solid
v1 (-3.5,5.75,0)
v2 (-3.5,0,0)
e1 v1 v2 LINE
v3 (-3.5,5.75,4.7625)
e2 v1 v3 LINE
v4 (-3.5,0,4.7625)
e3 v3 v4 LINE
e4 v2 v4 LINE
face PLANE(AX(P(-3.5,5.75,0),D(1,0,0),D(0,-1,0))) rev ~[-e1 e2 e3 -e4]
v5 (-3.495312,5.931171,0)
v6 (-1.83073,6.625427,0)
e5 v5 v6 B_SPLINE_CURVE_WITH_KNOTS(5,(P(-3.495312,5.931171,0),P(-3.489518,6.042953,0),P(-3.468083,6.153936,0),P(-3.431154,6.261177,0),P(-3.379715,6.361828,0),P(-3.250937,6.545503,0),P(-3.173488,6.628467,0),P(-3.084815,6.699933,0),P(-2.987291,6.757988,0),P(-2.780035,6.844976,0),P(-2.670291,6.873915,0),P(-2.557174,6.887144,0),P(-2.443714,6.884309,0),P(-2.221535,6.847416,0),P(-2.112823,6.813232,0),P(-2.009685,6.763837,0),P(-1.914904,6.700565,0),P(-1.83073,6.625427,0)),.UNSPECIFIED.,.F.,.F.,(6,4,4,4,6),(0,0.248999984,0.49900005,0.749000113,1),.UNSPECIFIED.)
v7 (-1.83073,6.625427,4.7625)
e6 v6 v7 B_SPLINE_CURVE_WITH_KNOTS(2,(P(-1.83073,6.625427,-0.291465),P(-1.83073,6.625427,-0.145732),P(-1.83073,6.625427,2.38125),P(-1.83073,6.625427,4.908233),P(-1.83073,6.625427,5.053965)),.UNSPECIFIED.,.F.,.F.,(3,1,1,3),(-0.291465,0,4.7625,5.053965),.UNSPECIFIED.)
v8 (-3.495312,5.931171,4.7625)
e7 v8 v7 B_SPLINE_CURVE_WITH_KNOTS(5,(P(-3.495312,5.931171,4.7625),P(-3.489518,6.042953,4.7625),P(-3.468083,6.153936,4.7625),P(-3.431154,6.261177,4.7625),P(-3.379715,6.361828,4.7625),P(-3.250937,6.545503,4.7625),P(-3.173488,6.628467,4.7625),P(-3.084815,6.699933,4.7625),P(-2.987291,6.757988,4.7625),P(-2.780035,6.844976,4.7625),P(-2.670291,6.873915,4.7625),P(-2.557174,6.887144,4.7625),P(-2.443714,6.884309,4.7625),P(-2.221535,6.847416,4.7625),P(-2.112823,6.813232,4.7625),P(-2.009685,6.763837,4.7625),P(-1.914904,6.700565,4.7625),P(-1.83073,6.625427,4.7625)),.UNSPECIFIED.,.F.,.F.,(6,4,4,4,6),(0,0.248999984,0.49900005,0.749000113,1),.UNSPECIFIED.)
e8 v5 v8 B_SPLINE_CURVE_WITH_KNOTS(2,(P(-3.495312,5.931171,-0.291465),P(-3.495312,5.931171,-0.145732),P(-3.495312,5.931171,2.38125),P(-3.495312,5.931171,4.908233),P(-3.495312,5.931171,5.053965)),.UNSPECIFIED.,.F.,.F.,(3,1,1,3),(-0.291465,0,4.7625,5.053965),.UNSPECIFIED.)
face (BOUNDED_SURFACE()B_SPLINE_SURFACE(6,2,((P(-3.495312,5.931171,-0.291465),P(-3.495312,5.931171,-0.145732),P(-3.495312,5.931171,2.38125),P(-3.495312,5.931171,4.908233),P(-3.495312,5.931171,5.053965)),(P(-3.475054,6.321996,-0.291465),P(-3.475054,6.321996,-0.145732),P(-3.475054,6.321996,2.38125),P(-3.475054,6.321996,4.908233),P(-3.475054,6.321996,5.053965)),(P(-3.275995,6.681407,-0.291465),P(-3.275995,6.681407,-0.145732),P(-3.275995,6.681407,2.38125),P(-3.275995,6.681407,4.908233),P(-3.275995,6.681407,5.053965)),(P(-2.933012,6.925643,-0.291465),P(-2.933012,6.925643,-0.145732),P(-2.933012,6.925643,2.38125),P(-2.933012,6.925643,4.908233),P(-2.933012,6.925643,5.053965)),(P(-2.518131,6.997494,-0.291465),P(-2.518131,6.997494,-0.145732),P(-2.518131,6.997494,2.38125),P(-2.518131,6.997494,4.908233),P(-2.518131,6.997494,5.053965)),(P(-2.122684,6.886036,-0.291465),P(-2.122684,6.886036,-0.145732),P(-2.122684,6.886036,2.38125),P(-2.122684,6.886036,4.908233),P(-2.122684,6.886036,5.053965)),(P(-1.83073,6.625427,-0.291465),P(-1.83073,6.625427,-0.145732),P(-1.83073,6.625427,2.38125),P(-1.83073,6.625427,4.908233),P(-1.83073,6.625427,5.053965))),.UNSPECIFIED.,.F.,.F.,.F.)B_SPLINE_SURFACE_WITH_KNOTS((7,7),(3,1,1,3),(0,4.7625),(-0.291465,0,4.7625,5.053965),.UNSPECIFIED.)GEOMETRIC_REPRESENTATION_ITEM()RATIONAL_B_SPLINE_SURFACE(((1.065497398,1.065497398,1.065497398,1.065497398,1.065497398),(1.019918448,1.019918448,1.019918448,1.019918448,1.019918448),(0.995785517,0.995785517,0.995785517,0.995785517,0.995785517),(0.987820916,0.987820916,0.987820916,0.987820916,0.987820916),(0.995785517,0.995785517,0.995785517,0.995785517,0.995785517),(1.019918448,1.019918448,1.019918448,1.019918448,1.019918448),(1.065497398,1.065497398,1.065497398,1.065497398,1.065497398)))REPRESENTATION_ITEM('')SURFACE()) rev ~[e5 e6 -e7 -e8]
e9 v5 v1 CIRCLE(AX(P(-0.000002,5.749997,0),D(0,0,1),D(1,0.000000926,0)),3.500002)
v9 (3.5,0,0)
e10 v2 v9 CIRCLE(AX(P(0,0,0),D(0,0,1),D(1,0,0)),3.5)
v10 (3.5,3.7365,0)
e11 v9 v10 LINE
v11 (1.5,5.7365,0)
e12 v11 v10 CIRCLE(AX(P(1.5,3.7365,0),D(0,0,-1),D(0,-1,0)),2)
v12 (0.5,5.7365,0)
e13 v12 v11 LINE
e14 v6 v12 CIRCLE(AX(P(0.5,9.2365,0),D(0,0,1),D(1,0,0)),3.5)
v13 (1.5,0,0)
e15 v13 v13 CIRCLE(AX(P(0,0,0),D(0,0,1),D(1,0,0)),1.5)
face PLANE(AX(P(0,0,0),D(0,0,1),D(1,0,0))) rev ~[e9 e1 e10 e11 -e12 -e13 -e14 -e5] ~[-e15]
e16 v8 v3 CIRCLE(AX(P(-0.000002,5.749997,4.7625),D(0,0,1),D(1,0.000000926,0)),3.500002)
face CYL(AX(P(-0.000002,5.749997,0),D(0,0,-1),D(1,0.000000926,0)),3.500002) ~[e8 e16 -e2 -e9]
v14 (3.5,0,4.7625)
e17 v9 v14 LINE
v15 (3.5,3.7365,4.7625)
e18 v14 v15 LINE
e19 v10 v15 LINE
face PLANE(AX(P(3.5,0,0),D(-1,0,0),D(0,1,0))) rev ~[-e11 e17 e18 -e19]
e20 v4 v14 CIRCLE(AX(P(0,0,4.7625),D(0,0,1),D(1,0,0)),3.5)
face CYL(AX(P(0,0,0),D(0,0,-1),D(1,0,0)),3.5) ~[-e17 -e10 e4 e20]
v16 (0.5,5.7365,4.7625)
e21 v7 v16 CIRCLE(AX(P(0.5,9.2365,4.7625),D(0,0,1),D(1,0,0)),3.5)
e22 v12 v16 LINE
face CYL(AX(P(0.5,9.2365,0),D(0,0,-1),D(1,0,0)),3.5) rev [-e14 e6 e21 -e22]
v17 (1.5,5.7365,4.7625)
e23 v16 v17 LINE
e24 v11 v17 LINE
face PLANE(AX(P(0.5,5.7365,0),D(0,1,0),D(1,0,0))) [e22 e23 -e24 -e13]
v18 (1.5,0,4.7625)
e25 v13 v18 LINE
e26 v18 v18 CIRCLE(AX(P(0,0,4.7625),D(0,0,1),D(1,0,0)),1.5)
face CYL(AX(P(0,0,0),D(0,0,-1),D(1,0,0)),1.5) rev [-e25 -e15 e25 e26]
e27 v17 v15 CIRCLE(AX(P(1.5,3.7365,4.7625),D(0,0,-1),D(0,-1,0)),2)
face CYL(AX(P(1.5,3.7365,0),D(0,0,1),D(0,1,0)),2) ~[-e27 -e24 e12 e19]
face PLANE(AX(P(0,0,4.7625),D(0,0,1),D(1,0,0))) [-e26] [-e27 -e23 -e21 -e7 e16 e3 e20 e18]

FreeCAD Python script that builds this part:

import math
import FreeCAD as App
import Part
import Sketcher

V = App.Vector


def edges_at(feature, points):
    """Names of the edges that pass closest to the given points."""
    edges = feature.Shape.Edges
    near = lambda p: min(range(len(edges)), key=lambda i: edges[i].distToShape(Part.Vertex(*p))[0])
    return sorted({f"Edge{near(p) + 1}" for p in points})

doc = App.newDocument("Part")
params = doc.addObject("Spreadsheet::Sheet", "Params")
for row, (alias, value) in enumerate([
    ("sketch1_diameter", "3 mm"),
    ("sketch1_radius", "3.5 mm"),
    ("sketch1_width", "3 mm"),
    ("sketch1_height", "5.75 mm"),
    ("pad1_length", "4.7625 mm"),
    ("fillet_radius", "1 mm"),
    ("fillet2_radius", "2 mm"),
], start=1):
    params.set(f"A{row}", alias)
    params.set(f"B{row}", "=" + value)
    params.setAlias(f"B{row}", alias)

body = doc.addObject("PartDesign::Body", "Body")

sketch1 = body.newObject("Sketcher::SketchObject", "Sketch")
sketch1.AttachmentSupport = (doc.getObject("XY_Plane"), [""])
sketch1.MapMode = "FlatFace"
sketch1.addGeometry(Part.ArcOfCircle(Part.Circle(V(0, 0, 0), V(0, 0, 1), 3.5), math.radians(180), math.radians(360)), False)
sketch1.addGeometry(Part.LineSegment(V(3.5, 0, 0), V(3.5, 5.7365, 0)), False)
sketch1.addGeometry(Part.LineSegment(V(3.5, 5.7365, 0), V(0.5, 5.7365, 0)), False)
sketch1.addGeometry(Part.ArcOfCircle(Part.Circle(V(0.5, 9.2365, 0), V(0, 0, 1), 3.5), math.radians(-157.951428), math.radians(-90)), False)
sketch1.addGeometry(Part.ArcOfCircle(Part.Circle(V(0, 5.75, 0), V(0, 0, 1), 3.5), math.radians(141.629067), math.radians(180)), False)
sketch1.addGeometry(Part.LineSegment(V(-3.5, 5.75, 0), V(-3.5, 0, 0)), False)
sketch1.addGeometry(Part.Circle(V(0, 0, 0), V(0, 0, 1), 1.5), False)
sketch1.addConstraint(Sketcher.Constraint("Tangent", 0, 2, 1, 1))
sketch1.addConstraint(Sketcher.Constraint("Coincident", 1, 2, 2, 1))
sketch1.addConstraint(Sketcher.Constraint("Tangent", 2, 2, 3, 2))
sketch1.addConstraint(Sketcher.Constraint("Coincident", 3, 1, 4, 1))
sketch1.addConstraint(Sketcher.Constraint("Tangent", 4, 2, 5, 1))
sketch1.addConstraint(Sketcher.Constraint("Tangent", 5, 2, 0, 1))
sketch1.addConstraint(Sketcher.Constraint("Vertical", 1))
sketch1.addConstraint(Sketcher.Constraint("Horizontal", 2))
sketch1.addConstraint(Sketcher.Constraint("Vertical", 5))
sketch1.addConstraint(Sketcher.Constraint("Coincident", 0, 3, -1, 1))
sketch1.addConstraint(Sketcher.Constraint("Coincident", 6, 3, -1, 1))
sketch1.addConstraint(Sketcher.Constraint("Equal", 0, 3))
sketch1.addConstraint(Sketcher.Constraint("Equal", 3, 4))
sketch1.addConstraint(Sketcher.Constraint("Diameter", 6, 3.0))
sketch1.addConstraint(Sketcher.Constraint("Radius", 0, 3.5))
sketch1.addConstraint(Sketcher.Constraint("DistanceX", 2, 2, 2, 1, 3.0))
sketch1.addConstraint(Sketcher.Constraint("DistanceY", 5, 2, 5, 1, 5.75))
sketch1.addConstraint(Sketcher.Constraint("DistanceY", 1, 1, 1, 2, 5.7365))
sketch1.setExpression("Constraints[13]", "Params.sketch1_diameter")
sketch1.setExpression("Constraints[14]", "Params.sketch1_radius")
sketch1.setExpression("Constraints[15]", "Params.sketch1_width")
sketch1.setExpression("Constraints[16]", "Params.sketch1_height")
pad1 = body.newObject("PartDesign::Pad", "Pad")
pad1.Profile = sketch1
pad1.setExpression("Length", "Params.pad1_length")
doc.recompute()

fillet = body.newObject("PartDesign::Fillet", "Fillet")
fillet.Base = (pad1, edges_at(pad1, [(-2.744, 7.923, 2.381)]))
fillet.setExpression("Radius", "Params.fillet_radius")
doc.recompute()

fillet2 = body.newObject("PartDesign::Fillet", "Fillet001")
fillet2.Base = (fillet, edges_at(fillet, [(3.5, 5.737, 2.381)]))
fillet2.setExpression("Radius", "Params.fillet2_radius")

doc.recompute()
